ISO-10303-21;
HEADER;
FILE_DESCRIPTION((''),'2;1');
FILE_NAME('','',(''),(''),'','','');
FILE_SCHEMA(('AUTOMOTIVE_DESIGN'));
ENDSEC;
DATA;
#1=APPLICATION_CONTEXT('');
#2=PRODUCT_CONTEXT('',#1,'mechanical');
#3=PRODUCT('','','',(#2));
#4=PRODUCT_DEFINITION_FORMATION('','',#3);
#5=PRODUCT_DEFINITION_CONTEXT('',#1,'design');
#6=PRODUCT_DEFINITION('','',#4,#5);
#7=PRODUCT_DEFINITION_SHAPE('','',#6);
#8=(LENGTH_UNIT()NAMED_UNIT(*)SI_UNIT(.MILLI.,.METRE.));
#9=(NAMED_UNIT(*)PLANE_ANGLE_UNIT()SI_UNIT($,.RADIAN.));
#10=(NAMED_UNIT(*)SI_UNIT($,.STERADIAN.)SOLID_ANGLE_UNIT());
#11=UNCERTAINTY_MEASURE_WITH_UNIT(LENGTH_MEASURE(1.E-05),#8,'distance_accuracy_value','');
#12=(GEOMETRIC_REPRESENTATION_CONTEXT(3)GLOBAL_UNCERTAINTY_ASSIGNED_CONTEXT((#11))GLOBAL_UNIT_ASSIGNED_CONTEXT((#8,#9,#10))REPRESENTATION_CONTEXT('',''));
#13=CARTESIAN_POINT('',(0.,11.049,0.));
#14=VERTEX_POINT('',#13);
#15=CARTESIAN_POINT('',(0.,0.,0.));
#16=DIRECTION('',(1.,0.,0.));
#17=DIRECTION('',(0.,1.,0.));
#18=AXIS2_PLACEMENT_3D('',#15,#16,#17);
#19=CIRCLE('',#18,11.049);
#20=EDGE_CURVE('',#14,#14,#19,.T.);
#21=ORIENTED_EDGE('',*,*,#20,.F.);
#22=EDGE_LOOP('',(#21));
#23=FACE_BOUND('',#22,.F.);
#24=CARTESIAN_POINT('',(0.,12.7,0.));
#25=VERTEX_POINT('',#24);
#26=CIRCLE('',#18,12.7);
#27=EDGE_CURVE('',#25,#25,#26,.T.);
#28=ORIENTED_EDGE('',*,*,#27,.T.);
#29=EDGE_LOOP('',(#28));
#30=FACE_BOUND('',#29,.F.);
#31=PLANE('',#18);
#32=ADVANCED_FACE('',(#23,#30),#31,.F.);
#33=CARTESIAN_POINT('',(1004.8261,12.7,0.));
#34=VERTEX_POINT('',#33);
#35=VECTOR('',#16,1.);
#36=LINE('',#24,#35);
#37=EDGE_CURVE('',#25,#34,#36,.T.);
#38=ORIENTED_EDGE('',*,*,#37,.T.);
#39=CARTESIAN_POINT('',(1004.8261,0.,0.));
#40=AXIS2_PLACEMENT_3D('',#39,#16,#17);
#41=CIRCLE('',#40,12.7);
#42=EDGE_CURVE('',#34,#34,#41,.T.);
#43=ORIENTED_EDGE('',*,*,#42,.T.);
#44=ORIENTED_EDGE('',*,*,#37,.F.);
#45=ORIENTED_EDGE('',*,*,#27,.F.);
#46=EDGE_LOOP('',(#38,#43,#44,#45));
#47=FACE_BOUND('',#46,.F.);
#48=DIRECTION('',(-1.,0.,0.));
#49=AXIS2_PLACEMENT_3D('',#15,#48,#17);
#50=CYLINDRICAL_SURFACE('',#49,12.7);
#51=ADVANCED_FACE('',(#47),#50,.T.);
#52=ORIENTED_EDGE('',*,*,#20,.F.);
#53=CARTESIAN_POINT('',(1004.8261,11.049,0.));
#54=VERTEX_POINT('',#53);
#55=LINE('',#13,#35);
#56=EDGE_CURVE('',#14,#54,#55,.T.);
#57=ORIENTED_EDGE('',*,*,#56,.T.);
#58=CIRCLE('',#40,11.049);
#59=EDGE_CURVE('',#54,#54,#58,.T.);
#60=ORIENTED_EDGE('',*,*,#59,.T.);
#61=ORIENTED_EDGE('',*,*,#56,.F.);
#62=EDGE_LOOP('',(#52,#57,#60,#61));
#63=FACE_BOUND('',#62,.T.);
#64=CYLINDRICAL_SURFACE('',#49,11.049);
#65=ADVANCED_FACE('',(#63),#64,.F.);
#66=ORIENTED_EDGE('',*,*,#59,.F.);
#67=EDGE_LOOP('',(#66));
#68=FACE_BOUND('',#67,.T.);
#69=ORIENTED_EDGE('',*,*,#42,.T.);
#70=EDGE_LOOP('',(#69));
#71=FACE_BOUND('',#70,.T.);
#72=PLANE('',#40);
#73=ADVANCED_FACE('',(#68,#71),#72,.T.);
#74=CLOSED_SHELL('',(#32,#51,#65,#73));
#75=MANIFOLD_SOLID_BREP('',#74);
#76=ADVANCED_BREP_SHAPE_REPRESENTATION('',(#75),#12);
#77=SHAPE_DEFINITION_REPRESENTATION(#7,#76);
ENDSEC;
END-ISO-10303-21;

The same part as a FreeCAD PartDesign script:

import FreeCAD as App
import Part
import Sketcher

V = App.Vector
Q = App.Units.Quantity

doc = App.newDocument("Part")
body = doc.addObject("PartDesign::Body", "Body")

sketch1 = doc.addObject("Sketcher::SketchObject", "Sketch")
body.addObject(sketch1)
sketch1.AttachmentSupport = (doc.YZ_Plane, [""])
sketch1.MapMode = "FlatFace"
sketch1.addGeometry([
    Part.Circle(V(0, 0, 0), V(0, 0, 1), 13),
    Part.Circle(V(0, 0, 0), V(0, 0, 1), 11),
], False)
sketch1.addConstraint([
    Sketcher.Constraint("Coincident", 0, 3, -1, 1),
    Sketcher.Constraint("Coincident", 1, 3, -1, 1),
    Sketcher.Constraint("Diameter", 0, Q("1 in")),
    Sketcher.Constraint("Diameter", 1, Q("0.87 in")),
])
pad1 = doc.addObject("PartDesign::Pad", "Pad")
body.addObject(pad1)
pad1.Profile = sketch1
pad1.Length = 1004.8261

doc.recompute()
